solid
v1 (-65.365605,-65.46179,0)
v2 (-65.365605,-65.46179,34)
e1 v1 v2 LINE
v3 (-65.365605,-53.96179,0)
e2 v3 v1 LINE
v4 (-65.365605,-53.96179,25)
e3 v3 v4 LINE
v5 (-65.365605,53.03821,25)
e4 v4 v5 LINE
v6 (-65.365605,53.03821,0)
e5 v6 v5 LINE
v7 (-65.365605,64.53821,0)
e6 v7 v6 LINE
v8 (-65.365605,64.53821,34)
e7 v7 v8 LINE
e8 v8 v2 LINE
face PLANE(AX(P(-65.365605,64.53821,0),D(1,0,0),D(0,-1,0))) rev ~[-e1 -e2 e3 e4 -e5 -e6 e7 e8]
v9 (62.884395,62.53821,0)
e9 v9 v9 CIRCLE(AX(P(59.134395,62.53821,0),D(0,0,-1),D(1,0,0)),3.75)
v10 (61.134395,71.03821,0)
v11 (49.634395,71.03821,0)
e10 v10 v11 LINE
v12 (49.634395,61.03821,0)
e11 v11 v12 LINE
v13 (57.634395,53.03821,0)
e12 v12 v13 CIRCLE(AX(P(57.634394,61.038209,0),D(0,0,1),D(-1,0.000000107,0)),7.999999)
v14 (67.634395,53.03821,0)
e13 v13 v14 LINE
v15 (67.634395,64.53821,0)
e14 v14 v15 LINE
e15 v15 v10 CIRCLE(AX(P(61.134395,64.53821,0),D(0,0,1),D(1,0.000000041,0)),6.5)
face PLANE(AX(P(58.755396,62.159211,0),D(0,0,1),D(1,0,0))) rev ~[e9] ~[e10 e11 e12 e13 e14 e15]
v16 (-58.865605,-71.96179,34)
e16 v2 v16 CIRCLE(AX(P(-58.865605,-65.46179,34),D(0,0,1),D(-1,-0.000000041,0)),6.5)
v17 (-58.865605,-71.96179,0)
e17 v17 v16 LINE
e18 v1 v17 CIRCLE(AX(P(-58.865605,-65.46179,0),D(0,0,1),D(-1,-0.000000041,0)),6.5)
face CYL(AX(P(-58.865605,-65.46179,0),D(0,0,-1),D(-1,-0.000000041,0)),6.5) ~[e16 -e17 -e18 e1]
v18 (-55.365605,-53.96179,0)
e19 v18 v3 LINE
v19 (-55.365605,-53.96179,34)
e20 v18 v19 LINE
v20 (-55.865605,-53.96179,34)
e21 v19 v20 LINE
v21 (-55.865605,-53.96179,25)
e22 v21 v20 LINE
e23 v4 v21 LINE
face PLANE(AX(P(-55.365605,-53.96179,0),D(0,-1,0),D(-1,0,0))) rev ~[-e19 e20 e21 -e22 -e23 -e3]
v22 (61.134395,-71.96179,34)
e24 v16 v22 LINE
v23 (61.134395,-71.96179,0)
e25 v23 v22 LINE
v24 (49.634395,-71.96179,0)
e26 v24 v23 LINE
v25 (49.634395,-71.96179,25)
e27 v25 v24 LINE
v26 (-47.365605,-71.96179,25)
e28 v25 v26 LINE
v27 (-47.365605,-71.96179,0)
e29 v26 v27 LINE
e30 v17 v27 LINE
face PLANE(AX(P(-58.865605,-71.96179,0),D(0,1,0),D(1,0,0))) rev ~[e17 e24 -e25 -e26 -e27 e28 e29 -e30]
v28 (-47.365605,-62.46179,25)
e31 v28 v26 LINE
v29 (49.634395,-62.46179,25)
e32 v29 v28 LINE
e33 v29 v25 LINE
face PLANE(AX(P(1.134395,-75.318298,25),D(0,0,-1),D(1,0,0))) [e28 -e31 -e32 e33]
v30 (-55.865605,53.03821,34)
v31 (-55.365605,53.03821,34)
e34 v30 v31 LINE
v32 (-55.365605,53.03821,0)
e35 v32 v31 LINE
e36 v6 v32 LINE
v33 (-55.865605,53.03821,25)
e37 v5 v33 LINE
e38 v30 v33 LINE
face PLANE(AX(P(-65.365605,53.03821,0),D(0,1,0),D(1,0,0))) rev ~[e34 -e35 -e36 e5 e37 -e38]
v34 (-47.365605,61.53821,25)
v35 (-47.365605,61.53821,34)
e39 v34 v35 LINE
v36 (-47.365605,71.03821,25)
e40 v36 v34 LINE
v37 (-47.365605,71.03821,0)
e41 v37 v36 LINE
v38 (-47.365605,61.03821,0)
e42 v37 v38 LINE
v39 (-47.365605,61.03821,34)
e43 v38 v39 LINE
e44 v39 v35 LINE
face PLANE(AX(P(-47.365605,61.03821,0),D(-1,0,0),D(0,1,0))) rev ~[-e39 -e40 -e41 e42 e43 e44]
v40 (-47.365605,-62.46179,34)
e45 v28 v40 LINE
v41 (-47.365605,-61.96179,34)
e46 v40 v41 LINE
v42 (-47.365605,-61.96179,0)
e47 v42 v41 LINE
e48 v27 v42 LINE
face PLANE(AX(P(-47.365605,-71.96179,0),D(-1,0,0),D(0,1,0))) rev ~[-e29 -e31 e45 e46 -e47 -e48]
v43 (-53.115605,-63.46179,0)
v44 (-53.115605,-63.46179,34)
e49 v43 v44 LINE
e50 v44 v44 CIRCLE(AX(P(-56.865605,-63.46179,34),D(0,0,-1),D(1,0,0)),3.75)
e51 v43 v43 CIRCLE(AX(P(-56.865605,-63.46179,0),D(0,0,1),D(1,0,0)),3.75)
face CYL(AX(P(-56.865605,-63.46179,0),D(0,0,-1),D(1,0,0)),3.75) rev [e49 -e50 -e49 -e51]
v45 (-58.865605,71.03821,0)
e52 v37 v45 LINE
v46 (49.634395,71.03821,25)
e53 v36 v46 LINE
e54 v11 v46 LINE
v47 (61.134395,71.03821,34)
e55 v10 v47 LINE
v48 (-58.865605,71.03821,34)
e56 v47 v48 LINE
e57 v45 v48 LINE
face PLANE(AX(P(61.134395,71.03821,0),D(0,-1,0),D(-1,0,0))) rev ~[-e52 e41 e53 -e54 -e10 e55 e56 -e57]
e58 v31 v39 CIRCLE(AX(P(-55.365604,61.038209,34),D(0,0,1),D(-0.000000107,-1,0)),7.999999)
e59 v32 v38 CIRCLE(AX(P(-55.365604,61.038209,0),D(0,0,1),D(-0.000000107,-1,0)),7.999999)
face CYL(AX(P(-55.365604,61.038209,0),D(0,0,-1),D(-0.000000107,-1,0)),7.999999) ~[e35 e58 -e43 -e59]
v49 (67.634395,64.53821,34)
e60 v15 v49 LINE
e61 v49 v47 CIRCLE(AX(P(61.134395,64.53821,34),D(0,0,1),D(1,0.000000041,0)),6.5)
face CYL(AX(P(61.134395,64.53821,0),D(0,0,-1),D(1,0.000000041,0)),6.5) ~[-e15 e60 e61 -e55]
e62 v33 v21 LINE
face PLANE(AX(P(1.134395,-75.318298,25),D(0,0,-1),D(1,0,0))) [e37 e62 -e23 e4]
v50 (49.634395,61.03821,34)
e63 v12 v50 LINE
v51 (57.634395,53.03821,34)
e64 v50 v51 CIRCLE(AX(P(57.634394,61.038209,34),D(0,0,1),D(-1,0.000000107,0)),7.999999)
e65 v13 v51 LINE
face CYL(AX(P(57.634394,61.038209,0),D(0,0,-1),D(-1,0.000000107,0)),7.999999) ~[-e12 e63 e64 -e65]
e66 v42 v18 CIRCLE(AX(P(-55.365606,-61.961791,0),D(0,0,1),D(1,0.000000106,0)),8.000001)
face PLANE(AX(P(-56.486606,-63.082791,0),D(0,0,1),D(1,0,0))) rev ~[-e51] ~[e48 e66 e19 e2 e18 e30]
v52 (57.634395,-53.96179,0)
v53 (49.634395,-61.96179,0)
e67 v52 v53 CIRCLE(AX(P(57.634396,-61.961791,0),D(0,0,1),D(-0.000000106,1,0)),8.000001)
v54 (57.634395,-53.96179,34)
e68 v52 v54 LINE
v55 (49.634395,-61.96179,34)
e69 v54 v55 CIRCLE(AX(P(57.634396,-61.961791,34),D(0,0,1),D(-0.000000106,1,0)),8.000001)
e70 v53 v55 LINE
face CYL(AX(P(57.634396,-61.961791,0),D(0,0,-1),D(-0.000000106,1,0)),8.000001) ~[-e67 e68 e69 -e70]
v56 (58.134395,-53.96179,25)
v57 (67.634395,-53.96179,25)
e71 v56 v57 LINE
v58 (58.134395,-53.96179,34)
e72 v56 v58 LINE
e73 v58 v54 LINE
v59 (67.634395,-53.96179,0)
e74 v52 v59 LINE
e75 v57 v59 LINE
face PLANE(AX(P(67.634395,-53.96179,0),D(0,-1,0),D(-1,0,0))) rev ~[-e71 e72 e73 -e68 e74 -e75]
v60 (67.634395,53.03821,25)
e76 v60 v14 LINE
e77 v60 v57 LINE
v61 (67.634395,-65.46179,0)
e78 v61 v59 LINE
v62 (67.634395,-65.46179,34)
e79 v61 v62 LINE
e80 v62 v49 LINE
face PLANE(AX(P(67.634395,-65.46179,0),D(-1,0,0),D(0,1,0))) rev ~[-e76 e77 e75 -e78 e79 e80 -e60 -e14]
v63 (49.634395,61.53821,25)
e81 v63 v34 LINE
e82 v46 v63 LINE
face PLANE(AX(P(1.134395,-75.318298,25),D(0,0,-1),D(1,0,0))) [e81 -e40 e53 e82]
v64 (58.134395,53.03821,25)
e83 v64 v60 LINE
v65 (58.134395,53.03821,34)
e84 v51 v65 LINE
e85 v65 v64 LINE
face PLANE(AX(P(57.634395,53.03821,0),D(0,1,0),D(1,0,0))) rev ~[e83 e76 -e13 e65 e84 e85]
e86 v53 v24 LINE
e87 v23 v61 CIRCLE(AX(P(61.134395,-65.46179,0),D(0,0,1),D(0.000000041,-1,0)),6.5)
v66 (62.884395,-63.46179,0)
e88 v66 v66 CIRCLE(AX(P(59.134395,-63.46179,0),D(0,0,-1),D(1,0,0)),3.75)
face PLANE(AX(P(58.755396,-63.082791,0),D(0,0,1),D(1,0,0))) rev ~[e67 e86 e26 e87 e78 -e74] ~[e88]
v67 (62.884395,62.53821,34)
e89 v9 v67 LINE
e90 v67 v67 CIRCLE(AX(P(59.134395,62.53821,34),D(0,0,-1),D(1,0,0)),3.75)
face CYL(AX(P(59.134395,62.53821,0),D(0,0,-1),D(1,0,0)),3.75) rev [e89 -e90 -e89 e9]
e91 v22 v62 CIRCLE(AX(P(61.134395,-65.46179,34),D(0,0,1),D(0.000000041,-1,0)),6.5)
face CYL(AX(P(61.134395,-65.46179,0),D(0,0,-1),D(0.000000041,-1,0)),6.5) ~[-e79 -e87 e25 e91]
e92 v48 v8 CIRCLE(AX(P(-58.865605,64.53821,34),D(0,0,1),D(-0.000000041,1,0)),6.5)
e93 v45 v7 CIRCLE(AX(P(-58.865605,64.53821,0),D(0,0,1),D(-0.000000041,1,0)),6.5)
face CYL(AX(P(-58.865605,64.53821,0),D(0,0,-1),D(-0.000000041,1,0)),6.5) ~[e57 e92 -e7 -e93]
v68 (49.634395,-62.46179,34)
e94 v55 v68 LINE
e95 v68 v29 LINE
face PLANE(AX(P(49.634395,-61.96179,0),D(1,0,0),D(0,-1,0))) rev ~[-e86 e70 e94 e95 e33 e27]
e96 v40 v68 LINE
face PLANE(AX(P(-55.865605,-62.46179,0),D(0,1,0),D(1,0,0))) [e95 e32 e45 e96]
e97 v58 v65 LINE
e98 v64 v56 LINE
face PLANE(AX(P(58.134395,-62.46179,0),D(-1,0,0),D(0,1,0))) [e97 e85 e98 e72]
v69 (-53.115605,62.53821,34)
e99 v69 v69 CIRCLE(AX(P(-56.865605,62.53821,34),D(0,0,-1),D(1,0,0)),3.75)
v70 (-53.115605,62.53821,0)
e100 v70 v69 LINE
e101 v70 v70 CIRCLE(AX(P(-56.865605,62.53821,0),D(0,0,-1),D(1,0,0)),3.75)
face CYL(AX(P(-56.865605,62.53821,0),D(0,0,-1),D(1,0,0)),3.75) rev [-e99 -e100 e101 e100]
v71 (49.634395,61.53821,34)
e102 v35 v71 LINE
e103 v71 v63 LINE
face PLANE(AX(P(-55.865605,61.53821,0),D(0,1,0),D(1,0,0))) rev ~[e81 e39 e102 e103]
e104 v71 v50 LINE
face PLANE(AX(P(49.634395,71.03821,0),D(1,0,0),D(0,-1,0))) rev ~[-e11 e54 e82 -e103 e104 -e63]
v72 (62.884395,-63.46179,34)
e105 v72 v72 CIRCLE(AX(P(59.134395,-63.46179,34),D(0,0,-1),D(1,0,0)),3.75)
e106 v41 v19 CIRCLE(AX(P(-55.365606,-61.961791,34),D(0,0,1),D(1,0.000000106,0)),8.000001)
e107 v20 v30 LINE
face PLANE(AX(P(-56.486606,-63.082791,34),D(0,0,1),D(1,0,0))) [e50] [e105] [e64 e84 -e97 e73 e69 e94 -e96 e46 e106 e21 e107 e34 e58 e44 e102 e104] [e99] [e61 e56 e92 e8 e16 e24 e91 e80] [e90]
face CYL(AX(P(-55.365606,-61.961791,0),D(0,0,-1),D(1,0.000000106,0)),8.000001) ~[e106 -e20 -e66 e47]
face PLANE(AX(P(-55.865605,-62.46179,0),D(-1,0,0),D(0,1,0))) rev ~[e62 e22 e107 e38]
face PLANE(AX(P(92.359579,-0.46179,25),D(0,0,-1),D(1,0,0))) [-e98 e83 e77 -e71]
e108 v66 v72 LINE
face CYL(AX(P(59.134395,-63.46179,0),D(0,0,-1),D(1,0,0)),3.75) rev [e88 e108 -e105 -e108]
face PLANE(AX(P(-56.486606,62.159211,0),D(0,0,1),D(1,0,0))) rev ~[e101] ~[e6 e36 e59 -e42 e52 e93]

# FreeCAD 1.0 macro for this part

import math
import FreeCAD as App
import Part
import Sketcher
Q = App.Units.Quantity


def add_polygon(sketch, points):
    """Adds a closed chain of lines whose ends are joined by coincident constraints."""
    first, n = sketch.GeometryCount, len(points)
    for a, b in zip(points, points[1:] + points[:1]):
        sketch.addGeometry(Part.LineSegment(App.Vector(*a, 0), App.Vector(*b, 0)), False)
    for i in range(n):
        sketch.addConstraint(Sketcher.Constraint("Coincident", first + i, 2, first + (i + 1) % n, 1))

doc = App.newDocument("Part")
body = doc.addObject("PartDesign::Body", "Body")

# Sketch on XY plane
sketch1 = body.newObject("Sketcher::SketchObject", "Sketch")
sketch1.AttachmentSupport = (doc.getObject("XY_Plane"), [""])
sketch1.MapMode = "FlatFace"
sketch1.addGeometry(Part.ArcOfCircle(Part.Circle(App.Vector(-58.865605, -65.46179, 0), App.Vector(0, 0, 1), 6.5), math.radians(-179.999998), math.radians(-90.000002)), False)  # 0
sketch1.addGeometry(Part.LineSegment(App.Vector(-58.865605, -71.96179, 0), App.Vector(61.134395, -71.96179, 0)), False)  # 1
sketch1.addGeometry(Part.ArcOfCircle(Part.Circle(App.Vector(61.134395, -65.46179, 0), App.Vector(0, 0, 1), 6.5), math.radians(-89.999998), math.radians(-0.000002)), False)  # 2
sketch1.addGeometry(Part.LineSegment(App.Vector(67.634395, -65.46179, 0), App.Vector(67.634395, 64.53821, 0)), False)  # 3
sketch1.addGeometry(Part.ArcOfCircle(Part.Circle(App.Vector(61.134395, 64.53821, 0), App.Vector(0, 0, 1), 6.5), math.radians(0.000002), math.radians(89.999998)), False)  # 4
sketch1.addGeometry(Part.LineSegment(App.Vector(61.134395, 71.03821, 0), App.Vector(-58.865605, 71.03821, 0)), False)  # 5
sketch1.addGeometry(Part.ArcOfCircle(Part.Circle(App.Vector(-58.865605, 64.53821, 0), App.Vector(0, 0, 1), 6.5), math.radians(90.000002), math.radians(179.999998)), False)  # 6
sketch1.addGeometry(Part.LineSegment(App.Vector(-65.365605, 64.53821, 0), App.Vector(-65.365605, -65.46179, 0)), False)  # 7
add_polygon(sketch1, [(58.134395, -62.46179), (-55.865605, -62.46179), (-55.865605, 61.53821), (58.134395, 61.53821)])  # lines 8-11
sketch1.addConstraint([
    Sketcher.Constraint("Tangent", 0, 2, 1, 1),
    Sketcher.Constraint("Tangent", 1, 2, 2, 1),
    Sketcher.Constraint("Tangent", 2, 2, 3, 1),
    Sketcher.Constraint("Tangent", 3, 2, 4, 1),
    Sketcher.Constraint("Tangent", 4, 2, 5, 1),
    Sketcher.Constraint("Tangent", 5, 2, 6, 1),
    Sketcher.Constraint("Tangent", 6, 2, 7, 1),
    Sketcher.Constraint("Tangent", 7, 2, 0, 1),
    Sketcher.Constraint("Horizontal", 1),
    Sketcher.Constraint("Vertical", 3),
    Sketcher.Constraint("Horizontal", 5),
    Sketcher.Constraint("Vertical", 7),
    Sketcher.Constraint("Horizontal", 8),
    Sketcher.Constraint("Vertical", 9),
    Sketcher.Constraint("Horizontal", 10),
    Sketcher.Constraint("Vertical", 11),
    Sketcher.Constraint("Equal", 0, 2),
    Sketcher.Constraint("Equal", 2, 4),
    Sketcher.Constraint("Equal", 4, 6),
    Sketcher.Constraint("Radius", 0, Q("6.5 mm")),
    Sketcher.Constraint("DistanceX", 1, 1, 1, 2, Q("120 mm")),
    Sketcher.Constraint("DistanceX", 8, 2, 8, 1, Q("114 mm")),
    Sketcher.Constraint("DistanceY", 3, 1, 3, 2, Q("130 mm")),
    Sketcher.Constraint("DistanceY", 9, 1, 9, 2, Q("124 mm")),
    Sketcher.Constraint("DistanceX", 0, 3, 8, 2, Q("3 mm")),
    Sketcher.Constraint("DistanceY", 0, 3, 8, 2, Q("3 mm")),
    Sketcher.Constraint("DistanceY", 0, 3, -1, 1, Q("65.46179 mm")),
    Sketcher.Constraint("DistanceX", 0, 3, -1, 1, Q("58.865605 mm")),
])
pad1 = body.newObject("PartDesign::Pad", "Pad")
pad1.Profile = sketch1
pad1.Length = 34

# Sketch on XY plane
sketch2 = body.newObject("Sketcher::SketchObject", "Sketch001")
sketch2.AttachmentSupport = (doc.getObject("XY_Plane"), [""])
sketch2.MapMode = "FlatFace"
add_polygon(sketch2, [(-47.365605, -96.674806), (-47.365605, -53.96179), (-90.862489, -53.96179), (-90.862489, 53.03821), (-47.365605, 53.03821), (-47.365605, 96.674806), (49.634395, 96.674806), (49.634395, 53.03821), (-47.365605, 53.03821), (-47.365605, -53.96179), (49.634395, -53.96179), (49.634395, -96.674806)])  # lines 0-11
add_polygon(sketch2, [(49.634395, -53.96179), (49.634395, 53.03821), (135.084763, 53.03821), (135.084763, -53.96179)])  # lines 12-15
sketch2.addConstraint([
    Sketcher.Constraint("Vertical", 0),
    Sketcher.Constraint("Horizontal", 1),
    Sketcher.Constraint("Vertical", 2),
    Sketcher.Constraint("Horizontal", 3),
    Sketcher.Constraint("Vertical", 4),
    Sketcher.Constraint("Horizontal", 5),
    Sketcher.Constraint("Vertical", 6),
    Sketcher.Constraint("Horizontal", 7),
    Sketcher.Constraint("Vertical", 8),
    Sketcher.Constraint("Horizontal", 9),
    Sketcher.Constraint("Vertical", 10),
    Sketcher.Constraint("Horizontal", 11),
    Sketcher.Constraint("Vertical", 12),
    Sketcher.Constraint("Horizontal", 13),
    Sketcher.Constraint("Vertical", 14),
    Sketcher.Constraint("Horizontal", 15),
    Sketcher.Constraint("Coincident", 7, 2, 3, 2),
    Sketcher.Constraint("Coincident", 8, 2, 0, 2),
    Sketcher.Constraint("Coincident", 12, 2, 6, 2),
    Sketcher.Constraint("Coincident", 15, 2, 9, 2),
    Sketcher.Constraint("DistanceX", 5, 1, 5, 2, Q("97 mm")),
    Sketcher.Constraint("DistanceY", 2, 1, 2, 2, Q("107 mm")),
    Sketcher.Constraint("DistanceX", 13, 1, 13, 2, Q("85.450368 mm")),
    Sketcher.Constraint("DistanceX", 1, 2, 1, 1, Q("43.496884 mm")),
    Sketcher.Constraint("DistanceY", 0, 1, 0, 2, Q("42.713016 mm")),
    Sketcher.Constraint("DistanceY", 4, 1, 4, 2, Q("43.636596 mm")),
    Sketcher.Constraint("DistanceY", 0, 2, -1, 1, Q("53.96179 mm")),
    Sketcher.Constraint("DistanceX", 1, 2, -1, 1, Q("90.862489 mm")),
])
pocket1 = body.newObject("PartDesign::Pocket", "Pocket")
pocket1.Profile = sketch2
pocket1.Length = 25
pocket1.Reversed = True

# Sketch on XY plane
sketch3 = body.newObject("Sketcher::SketchObject", "Sketch002")
sketch3.AttachmentSupport = (doc.getObject("XY_Plane"), [""])
sketch3.MapMode = "FlatFace"
sketch3.addGeometry([
    Part.ArcOfCircle(Part.Circle(App.Vector(-55.365606, -61.961791, 0), App.Vector(0, 0, 1), 8.000001), math.radians(0.000006), math.radians(89.999994)),  # 0
    Part.LineSegment(App.Vector(-55.365605, -53.96179, 0), App.Vector(-65.365605, -53.96179, 0)),  # 1
    Part.LineSegment(App.Vector(-65.365605, -53.96179, 0), App.Vector(-65.365605, -65.46179, 0)),  # 2
    Part.ArcOfCircle(Part.Circle(App.Vector(-58.865605, -65.46179, 0), App.Vector(0, 0, 1), 6.5), math.radians(-179.999998), math.radians(-90.000002)),  # 3
    Part.LineSegment(App.Vector(-58.865605, -71.96179, 0), App.Vector(-47.365605, -71.96179, 0)),  # 4
    Part.LineSegment(App.Vector(-47.365605, -71.96179, 0), App.Vector(-47.365605, -61.96179, 0)),  # 5
    Part.Circle(App.Vector(-56.865605, -63.46179, 0), App.Vector(0, 0, 1), 3.75),  # 6
    Part.ArcOfCircle(Part.Circle(App.Vector(57.634396, -61.961791, 0), App.Vector(0, 0, 1), 8.000001), math.radians(90.000006), math.radians(179.999994)),  # 7
    Part.LineSegment(App.Vector(49.634395, -61.96179, 0), App.Vector(49.634395, -71.96179, 0)),  # 8
    Part.LineSegment(App.Vector(49.634395, -71.96179, 0), App.Vector(61.134395, -71.96179, 0)),  # 9
    Part.ArcOfCircle(Part.Circle(App.Vector(61.134395, -65.46179, 0), App.Vector(0, 0, 1), 6.5), math.radians(-89.999998), math.radians(-0.000002)),  # 10
    Part.LineSegment(App.Vector(67.634395, -65.46179, 0), App.Vector(67.634395, -53.96179, 0)),  # 11
    Part.LineSegment(App.Vector(67.634395, -53.96179, 0), App.Vector(57.634395, -53.96179, 0)),  # 12
    Part.Circle(App.Vector(59.134395, -63.46179, 0), App.Vector(0, 0, 1), 3.75),  # 13
    Part.LineSegment(App.Vector(57.634395, 53.03821, 0), App.Vector(67.634395, 53.03821, 0)),  # 14
    Part.LineSegment(App.Vector(67.634395, 53.03821, 0), App.Vector(67.634395, 64.53821, 0)),  # 15
    Part.ArcOfCircle(Part.Circle(App.Vector(61.134395, 64.53821, 0), App.Vector(0, 0, 1), 6.5), math.radians(0.000002), math.radians(89.999998)),  # 16
    Part.LineSegment(App.Vector(61.134395, 71.03821, 0), App.Vector(49.634395, 71.03821, 0)),  # 17
    Part.LineSegment(App.Vector(49.634395, 71.03821, 0), App.Vector(49.634395, 61.03821, 0)),  # 18
    Part.ArcOfCircle(Part.Circle(App.Vector(57.634394, 61.038209, 0), App.Vector(0, 0, 1), 7.999999), math.radians(179.999994), math.radians(270.000006)),  # 19
    Part.Circle(App.Vector(59.134395, 62.53821, 0), App.Vector(0, 0, 1), 3.75),  # 20
    Part.LineSegment(App.Vector(-65.365605, 53.03821, 0), App.Vector(-55.365605, 53.03821, 0)),  # 21
    Part.ArcOfCircle(Part.Circle(App.Vector(-55.365604, 61.038209, 0), App.Vector(0, 0, 1), 7.999999), math.radians(-90.000006), math.radians(0.000006)),  # 22
    Part.LineSegment(App.Vector(-47.365605, 61.03821, 0), App.Vector(-47.365605, 71.03821, 0)),  # 23
    Part.LineSegment(App.Vector(-47.365605, 71.03821, 0), App.Vector(-58.865605, 71.03821, 0)),  # 24
    Part.ArcOfCircle(Part.Circle(App.Vector(-58.865605, 64.53821, 0), App.Vector(0, 0, 1), 6.5), math.radians(90.000002), math.radians(179.999998)),  # 25
    Part.LineSegment(App.Vector(-65.365605, 64.53821, 0), App.Vector(-65.365605, 53.03821, 0)),  # 26
    Part.Circle(App.Vector(-56.865605, 62.53821, 0), App.Vector(0, 0, 1), 3.75),  # 27
], False)
sketch3.addConstraint([
    Sketcher.Constraint("Tangent", 0, 2, 1, 1),
    Sketcher.Constraint("Coincident", 1, 2, 2, 1),
    Sketcher.Constraint("Tangent", 2, 2, 3, 1),
    Sketcher.Constraint("Tangent", 3, 2, 4, 1),
    Sketcher.Constraint("Coincident", 4, 2, 5, 1),
    Sketcher.Constraint("Tangent", 5, 2, 0, 1),
    Sketcher.Constraint("Tangent", 7, 2, 8, 1),
    Sketcher.Constraint("Coincident", 8, 2, 9, 1),
    Sketcher.Constraint("Tangent", 9, 2, 10, 1),
    Sketcher.Constraint("Tangent", 10, 2, 11, 1),
    Sketcher.Constraint("Coincident", 11, 2, 12, 1),
    Sketcher.Constraint("Tangent", 12, 2, 7, 1),
    Sketcher.Constraint("Coincident", 14, 2, 15, 1),
    Sketcher.Constraint("Tangent", 15, 2, 16, 1),
    Sketcher.Constraint("Tangent", 16, 2, 17, 1),
    Sketcher.Constraint("Coincident", 17, 2, 18, 1),
    Sketcher.Constraint("Tangent", 18, 2, 19, 1),
    Sketcher.Constraint("Tangent", 19, 2, 14, 1),
    Sketcher.Constraint("Tangent", 21, 2, 22, 1),
    Sketcher.Constraint("Tangent", 22, 2, 23, 1),
    Sketcher.Constraint("Coincident", 23, 2, 24, 1),
    Sketcher.Constraint("Tangent", 24, 2, 25, 1),
    Sketcher.Constraint("Tangent", 25, 2, 26, 1),
    Sketcher.Constraint("Coincident", 26, 2, 21, 1),
    Sketcher.Constraint("Horizontal", 1),
    Sketcher.Constraint("Vertical", 2),
    Sketcher.Constraint("Horizontal", 4),
    Sketcher.Constraint("Vertical", 5),
    Sketcher.Constraint("Vertical", 8),
    Sketcher.Constraint("Horizontal", 9),
    Sketcher.Constraint("Vertical", 11),
    Sketcher.Constraint("Horizontal", 12),
    Sketcher.Constraint("Horizontal", 14),
    Sketcher.Constraint("Vertical", 15),
    Sketcher.Constraint("Horizontal", 17),
    Sketcher.Constraint("Vertical", 18),
    Sketcher.Constraint("Horizontal", 21),
    Sketcher.Constraint("Vertical", 23),
    Sketcher.Constraint("Horizontal", 24),
    Sketcher.Constraint("Vertical", 26),
    Sketcher.Constraint("Equal", 0, 7),
    Sketcher.Constraint("Equal", 3, 10),
    Sketcher.Constraint("Equal", 6, 13),
    Sketcher.Constraint("Equal", 10, 16),
    Sketcher.Constraint("Equal", 7, 19),
    Sketcher.Constraint("Equal", 13, 20),
    Sketcher.Constraint("Equal", 19, 22),
    Sketcher.Constraint("Equal", 16, 25),
    Sketcher.Constraint("Equal", 20, 27),
    Sketcher.Constraint("Horizontal", 0, 3, 7, 3),
    Sketcher.Constraint("Horizontal", 3, 3, 10, 3),
    Sketcher.Constraint("Horizontal", 6, 3, 13, 3),
    Sketcher.Constraint("Horizontal", 19, 3, 22, 3),
    Sketcher.Constraint("Horizontal", 16, 3, 25, 3),
    Sketcher.Constraint("Horizontal", 20, 3, 27, 3),
    Sketcher.Constraint("Vertical", 10, 3, 16, 3),
    Sketcher.Constraint("Vertical", 7, 3, 19, 3),
    Sketcher.Constraint("Vertical", 13, 3, 20, 3),
    Sketcher.Constraint("Vertical", 0, 3, 22, 3),
    Sketcher.Constraint("Vertical", 3, 3, 25, 3),
    Sketcher.Constraint("Vertical", 6, 3, 27, 3),
    Sketcher.Constraint("Equal", 4, 9),
    Sketcher.Constraint("Equal", 24, 2),
    Sketcher.Constraint("Equal", 11, 15),
    Sketcher.Constraint("Radius", 0, Q("8.000001 mm")),
    Sketcher.Constraint("Diameter", 6, Q("7.5 mm")),
    Sketcher.Constraint("Radius", 3, Q("6.5 mm")),
    Sketcher.Constraint("DistanceX", 1, 2, 1, 1, Q("10 mm")),
    Sketcher.Constraint("DistanceX", 3, 3, 6, 3, Q("2 mm")),
    Sketcher.Constraint("DistanceY", 3, 3, 6, 3, Q("2 mm")),
    Sketcher.Constraint("DistanceX", 0, 3, 7, 3, Q("113.000002 mm")),
    Sketcher.Constraint("DistanceX", 13, 3, 10, 3, Q("2 mm")),
    Sketcher.Constraint("DistanceY", 13, 3, 16, 3, Q("128 mm")),
    Sketcher.Constraint("DistanceY", 20, 3, 16, 3, Q("2 mm")),
    Sketcher.Constraint("DistanceY", 0, 3, -1, 1, Q("61.961791 mm")),
    Sketcher.Constraint("DistanceX", 0, 3, -1, 1, Q("55.365606 mm")),
])
pad2 = body.newObject("PartDesign::Pad", "Pad001")
pad2.Profile = sketch3
pad2.Length = 34

# Sketch on XY plane
sketch4 = body.newObject("Sketcher::SketchObject", "Sketch003")
sketch4.AttachmentSupport = (doc.getObject("XY_Plane"), [""])
sketch4.MapMode = "FlatFace"
sketch4.addGeometry([
    Part.Circle(App.Vector(-56.865605, -63.46179, 0), App.Vector(0, 0, 1), 3.75),
    Part.Circle(App.Vector(59.134395, -63.46179, 0), App.Vector(0, 0, 1), 3.75),
    Part.Circle(App.Vector(59.134395, 62.53821, 0), App.Vector(0, 0, 1), 3.75),
    Part.Circle(App.Vector(-56.865605, 62.53821, 0), App.Vector(0, 0, 1), 3.75),
], False)
sketch4.addConstraint([
    Sketcher.Constraint("Equal", 0, 1),
    Sketcher.Constraint("Equal", 1, 2),
    Sketcher.Constraint("Equal", 2, 3),
    Sketcher.Constraint("Horizontal", 0, 3, 1, 3),
    Sketcher.Constraint("Horizontal", 2, 3, 3, 3),
    Sketcher.Constraint("Vertical", 1, 3, 2, 3),
    Sketcher.Constraint("Vertical", 0, 3, 3, 3),
    Sketcher.Constraint("Diameter", 0, Q("7.5 mm")),
    Sketcher.Constraint("DistanceX", 0, 3, 1, 3, Q("116 mm")),
    Sketcher.Constraint("DistanceY", 1, 3, 2, 3, Q("126 mm")),
    Sketcher.Constraint("DistanceY", 0, 3, -1, 1, Q("63.46179 mm")),
    Sketcher.Constraint("DistanceX", 0, 3, -1, 1, Q("56.865605 mm")),
])
pocket2 = body.newObject("PartDesign::Pocket", "Pocket001")
pocket2.Profile = sketch4
pocket2.Length = 34
pocket2.Reversed = True

doc.recompute()
